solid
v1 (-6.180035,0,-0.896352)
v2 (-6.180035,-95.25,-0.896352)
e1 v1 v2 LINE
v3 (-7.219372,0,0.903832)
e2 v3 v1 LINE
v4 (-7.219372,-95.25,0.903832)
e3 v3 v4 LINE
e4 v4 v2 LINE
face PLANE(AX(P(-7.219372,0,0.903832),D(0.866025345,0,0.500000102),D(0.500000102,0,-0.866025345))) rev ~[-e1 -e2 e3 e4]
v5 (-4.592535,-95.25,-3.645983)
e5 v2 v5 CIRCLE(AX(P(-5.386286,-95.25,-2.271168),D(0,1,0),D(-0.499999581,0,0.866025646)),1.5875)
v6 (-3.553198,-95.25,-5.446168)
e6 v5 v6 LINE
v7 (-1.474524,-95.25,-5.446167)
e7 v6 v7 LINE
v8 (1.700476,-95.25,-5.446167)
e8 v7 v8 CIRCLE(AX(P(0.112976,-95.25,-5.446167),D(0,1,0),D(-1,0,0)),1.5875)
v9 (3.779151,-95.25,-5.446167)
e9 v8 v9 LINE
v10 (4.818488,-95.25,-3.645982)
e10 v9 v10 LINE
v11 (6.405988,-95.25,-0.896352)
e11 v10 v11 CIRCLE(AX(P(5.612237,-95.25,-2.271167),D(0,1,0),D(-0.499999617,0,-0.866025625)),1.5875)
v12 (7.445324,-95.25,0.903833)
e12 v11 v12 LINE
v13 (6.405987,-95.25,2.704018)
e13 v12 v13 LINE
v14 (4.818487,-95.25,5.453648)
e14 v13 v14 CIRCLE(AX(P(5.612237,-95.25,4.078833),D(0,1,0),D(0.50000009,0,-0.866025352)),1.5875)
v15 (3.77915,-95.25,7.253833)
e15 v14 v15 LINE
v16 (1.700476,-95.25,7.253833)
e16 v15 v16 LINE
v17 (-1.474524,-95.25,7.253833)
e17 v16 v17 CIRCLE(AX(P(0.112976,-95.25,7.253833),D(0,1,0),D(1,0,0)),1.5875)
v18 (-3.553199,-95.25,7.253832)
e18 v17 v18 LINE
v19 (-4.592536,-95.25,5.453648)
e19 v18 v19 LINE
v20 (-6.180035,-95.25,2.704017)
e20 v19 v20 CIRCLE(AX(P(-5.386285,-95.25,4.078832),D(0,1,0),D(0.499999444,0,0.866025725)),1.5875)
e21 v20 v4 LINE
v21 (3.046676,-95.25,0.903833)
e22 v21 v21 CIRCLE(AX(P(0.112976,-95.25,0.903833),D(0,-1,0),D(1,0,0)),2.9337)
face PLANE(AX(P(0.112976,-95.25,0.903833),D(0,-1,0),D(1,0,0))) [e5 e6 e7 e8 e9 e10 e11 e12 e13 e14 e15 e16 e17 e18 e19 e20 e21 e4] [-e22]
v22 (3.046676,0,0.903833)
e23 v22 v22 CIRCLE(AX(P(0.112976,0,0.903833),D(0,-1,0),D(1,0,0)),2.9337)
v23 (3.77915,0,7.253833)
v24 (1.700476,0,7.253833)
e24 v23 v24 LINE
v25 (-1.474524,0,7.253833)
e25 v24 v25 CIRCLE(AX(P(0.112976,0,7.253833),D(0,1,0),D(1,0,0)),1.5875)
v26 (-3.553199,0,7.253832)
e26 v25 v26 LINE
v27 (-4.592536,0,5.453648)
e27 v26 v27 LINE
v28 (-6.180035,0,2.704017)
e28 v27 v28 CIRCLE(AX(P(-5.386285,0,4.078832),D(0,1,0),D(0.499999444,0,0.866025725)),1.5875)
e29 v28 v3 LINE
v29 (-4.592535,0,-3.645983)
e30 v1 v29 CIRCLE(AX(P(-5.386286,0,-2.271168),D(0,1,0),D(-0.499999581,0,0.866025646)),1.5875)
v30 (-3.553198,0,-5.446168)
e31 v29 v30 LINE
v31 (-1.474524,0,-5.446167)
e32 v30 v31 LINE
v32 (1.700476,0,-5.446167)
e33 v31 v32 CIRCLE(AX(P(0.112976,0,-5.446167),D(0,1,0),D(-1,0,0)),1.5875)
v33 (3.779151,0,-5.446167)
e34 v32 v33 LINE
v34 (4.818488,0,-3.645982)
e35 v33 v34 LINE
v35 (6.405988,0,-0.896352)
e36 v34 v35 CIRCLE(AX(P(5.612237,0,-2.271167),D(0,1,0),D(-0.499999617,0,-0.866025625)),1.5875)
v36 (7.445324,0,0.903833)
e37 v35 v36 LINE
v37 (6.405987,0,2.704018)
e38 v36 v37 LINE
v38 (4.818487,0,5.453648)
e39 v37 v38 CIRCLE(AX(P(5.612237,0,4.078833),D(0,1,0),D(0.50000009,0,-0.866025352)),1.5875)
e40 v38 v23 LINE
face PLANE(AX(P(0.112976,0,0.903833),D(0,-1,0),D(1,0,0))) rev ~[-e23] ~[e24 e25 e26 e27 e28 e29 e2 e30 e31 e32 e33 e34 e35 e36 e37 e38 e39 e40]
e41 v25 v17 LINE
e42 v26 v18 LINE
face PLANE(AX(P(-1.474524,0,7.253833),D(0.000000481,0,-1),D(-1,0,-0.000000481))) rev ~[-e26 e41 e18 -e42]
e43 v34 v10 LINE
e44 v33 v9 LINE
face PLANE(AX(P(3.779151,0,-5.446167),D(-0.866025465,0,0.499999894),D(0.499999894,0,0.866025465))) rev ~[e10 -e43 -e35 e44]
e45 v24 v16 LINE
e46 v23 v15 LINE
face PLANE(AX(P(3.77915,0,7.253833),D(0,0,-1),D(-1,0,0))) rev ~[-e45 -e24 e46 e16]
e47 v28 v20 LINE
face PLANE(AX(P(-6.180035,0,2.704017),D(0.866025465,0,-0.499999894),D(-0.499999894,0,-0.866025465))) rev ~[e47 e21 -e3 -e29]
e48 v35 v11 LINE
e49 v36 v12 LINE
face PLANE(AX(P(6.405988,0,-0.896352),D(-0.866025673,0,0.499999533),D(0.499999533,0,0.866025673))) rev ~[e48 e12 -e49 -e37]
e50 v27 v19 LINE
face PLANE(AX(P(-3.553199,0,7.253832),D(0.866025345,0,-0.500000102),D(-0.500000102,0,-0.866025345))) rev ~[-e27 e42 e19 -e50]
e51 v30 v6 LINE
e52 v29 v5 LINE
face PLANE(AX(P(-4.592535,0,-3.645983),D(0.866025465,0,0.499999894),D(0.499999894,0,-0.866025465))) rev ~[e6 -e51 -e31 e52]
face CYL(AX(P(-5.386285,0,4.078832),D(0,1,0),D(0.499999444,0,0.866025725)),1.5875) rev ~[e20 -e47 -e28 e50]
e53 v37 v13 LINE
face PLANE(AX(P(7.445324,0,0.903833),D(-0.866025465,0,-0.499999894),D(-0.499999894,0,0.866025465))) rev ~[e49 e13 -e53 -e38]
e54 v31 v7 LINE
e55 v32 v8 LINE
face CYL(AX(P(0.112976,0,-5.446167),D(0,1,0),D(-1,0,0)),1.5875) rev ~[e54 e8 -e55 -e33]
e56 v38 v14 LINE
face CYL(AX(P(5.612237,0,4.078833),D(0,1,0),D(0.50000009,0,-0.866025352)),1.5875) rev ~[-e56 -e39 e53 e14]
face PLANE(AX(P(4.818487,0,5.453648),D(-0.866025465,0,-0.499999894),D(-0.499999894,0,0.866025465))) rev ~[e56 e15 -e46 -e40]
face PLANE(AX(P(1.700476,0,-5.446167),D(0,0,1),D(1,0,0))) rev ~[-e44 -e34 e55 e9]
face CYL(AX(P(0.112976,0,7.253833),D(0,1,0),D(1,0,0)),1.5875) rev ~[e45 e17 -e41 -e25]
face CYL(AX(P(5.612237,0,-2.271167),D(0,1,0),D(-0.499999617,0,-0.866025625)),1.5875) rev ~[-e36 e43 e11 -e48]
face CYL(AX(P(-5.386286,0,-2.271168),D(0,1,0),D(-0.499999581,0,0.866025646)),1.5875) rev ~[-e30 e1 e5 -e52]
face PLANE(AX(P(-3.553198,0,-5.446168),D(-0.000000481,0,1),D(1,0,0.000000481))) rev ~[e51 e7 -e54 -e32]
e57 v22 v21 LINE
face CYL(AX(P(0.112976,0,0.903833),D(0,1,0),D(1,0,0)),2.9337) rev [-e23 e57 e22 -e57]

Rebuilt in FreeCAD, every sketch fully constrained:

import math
import FreeCAD as App
import Part
import Sketcher
from FreeCAD import Vector
Q = App.Units.Quantity

doc = App.newDocument("Part")
params = doc.addObject("Spreadsheet::Sheet", "Params")
for row, (alias, value) in enumerate([
    ("sketch1_diameter", "0.231 in"),
    ("sketch1_radius", "0.0625 in"),
    ("sketch1_width", "0.03125 in"),
    ("pad1_length", "3.75 in"),
], start=1):
    params.set(f"A{row}", alias)
    params.set(f"B{row}", "=" + value)
    params.setAlias(f"B{row}", alias)

body = doc.addObject("PartDesign::Body", "Body")

sketch1 = body.newObject("Sketcher::SketchObject", "Sketch")
sketch1.AttachmentSupport = (doc.getObject("XZ_Plane"), [""])
sketch1.MapMode = "FlatFace"
sketch1.addGeometry([
    Part.ArcOfCircle(Part.Circle(Vector(5.612237, -2.271167, 0), Vector(0, 0, 1), 1.5875), math.radians(59.999963), math.radians(240.000025)),
    Part.LineSegment(Vector(6.405988, -0.896352, 0), Vector(7.445324, 0.903833, 0)),
    Part.LineSegment(Vector(7.445324, 0.903833, 0), Vector(6.405987, 2.704018, 0)),
    Part.ArcOfCircle(Part.Circle(Vector(5.612237, 4.078833, 0), Vector(0, 0, 1), 1.5875), math.radians(120.000006), math.radians(300.000006)),
    Part.LineSegment(Vector(4.818487, 5.453648, 0), Vector(3.77915, 7.253833, 0)),
    Part.LineSegment(Vector(3.77915, 7.253833, 0), Vector(1.700476, 7.253833, 0)),
    Part.ArcOfCircle(Part.Circle(Vector(0.112976, 7.253833, 0), Vector(0, 0, 1), 1.5875), math.radians(180), math.radians(360)),
    Part.LineSegment(Vector(-1.474524, 7.253833, 0), Vector(-3.553199, 7.253832, 0)),
    Part.LineSegment(Vector(-3.553199, 7.253832, 0), Vector(-4.592536, 5.453648, 0)),
    Part.ArcOfCircle(Part.Circle(Vector(-5.386285, 4.078832, 0), Vector(0, 0, 1), 1.5875), math.radians(-119.999999), math.radians(60.000037)),
    Part.LineSegment(Vector(-6.180035, 2.704017, 0), Vector(-7.219372, 0.903832, 0)),
    Part.LineSegment(Vector(-7.219372, 0.903832, 0), Vector(-6.180035, -0.896352, 0)),
    Part.ArcOfCircle(Part.Circle(Vector(-5.386286, -2.271168, 0), Vector(0, 0, 1), 1.5875), math.radians(-59.999978), math.radians(119.999972)),
    Part.LineSegment(Vector(-4.592535, -3.645983, 0), Vector(-3.553198, -5.446168, 0)),
    Part.LineSegment(Vector(-3.553198, -5.446168, 0), Vector(-1.474524, -5.446167, 0)),
    Part.ArcOfCircle(Part.Circle(Vector(0.112976, -5.446167, 0), Vector(0, 0, 1), 1.5875), math.radians(0), math.radians(180)),
    Part.LineSegment(Vector(1.700476, -5.446167, 0), Vector(3.779151, -5.446167, 0)),
    Part.LineSegment(Vector(3.779151, -5.446167, 0), Vector(4.818488, -3.645982, 0)),
    Part.Circle(Vector(0.112976, 0.903833, 0), Vector(0, 0, 1), 2.9337),
], False)
sketch1.addConstraint([
    Sketcher.Constraint("Coincident", 0, 1, 1, 1),
    Sketcher.Constraint("Coincident", 1, 2, 2, 1),
    Sketcher.Constraint("Coincident", 2, 2, 3, 2),
    Sketcher.Constraint("Coincident", 3, 1, 4, 1),
    Sketcher.Constraint("Coincident", 4, 2, 5, 1),
    Sketcher.Constraint("Coincident", 5, 2, 6, 2),
    Sketcher.Constraint("Coincident", 6, 1, 7, 1),
    Sketcher.Constraint("Coincident", 7, 2, 8, 1),
    Sketcher.Constraint("Coincident", 8, 2, 9, 2),
    Sketcher.Constraint("Coincident", 9, 1, 10, 1),
    Sketcher.Constraint("Coincident", 10, 2, 11, 1),
    Sketcher.Constraint("Coincident", 11, 2, 12, 2),
    Sketcher.Constraint("Coincident", 12, 1, 13, 1),
    Sketcher.Constraint("Coincident", 13, 2, 14, 1),
    Sketcher.Constraint("Coincident", 14, 2, 15, 2),
    Sketcher.Constraint("Coincident", 15, 1, 16, 1),
    Sketcher.Constraint("Coincident", 16, 2, 17, 1),
    Sketcher.Constraint("Coincident", 17, 2, 0, 2),
    Sketcher.Constraint("Horizontal", 5),
    Sketcher.Constraint("Horizontal", 7),
    Sketcher.Constraint("Horizontal", 14),
    Sketcher.Constraint("Horizontal", 16),
    Sketcher.Constraint("Equal", 0, 3),
    Sketcher.Constraint("Equal", 3, 6),
    Sketcher.Constraint("Equal", 6, 9),
    Sketcher.Constraint("Equal", 9, 12),
    Sketcher.Constraint("Equal", 12, 15),
    Sketcher.Constraint("Parallel", 2, 4),
    Sketcher.Constraint("Parallel", 1, 8),
    Sketcher.Constraint("Parallel", 8, 10),
    Sketcher.Constraint("Parallel", 4, 11),
    Sketcher.Constraint("Parallel", 11, 13),
    Sketcher.Constraint("Parallel", 10, 17),
    Sketcher.Constraint("Horizontal", 3, 3, 9, 3),
    Sketcher.Constraint("Horizontal", 0, 3, 12, 3),
    Sketcher.Constraint("Horizontal", 18, 3, 1, 2),
    Sketcher.Constraint("Horizontal", 6, 3, 4, 2),
    Sketcher.Constraint("Horizontal", 5, 2, 6, 1),
    Sketcher.Constraint("Horizontal", 3, 1, 8, 2),
    Sketcher.Constraint("Horizontal", 2, 2, 9, 1),
    Sketcher.Constraint("Horizontal", 1, 2, 10, 2),
    Sketcher.Constraint("Horizontal", 0, 1, 11, 2),
    Sketcher.Constraint("Horizontal", 15, 3, 13, 2),
    Sketcher.Constraint("Horizontal", 14, 2, 15, 1),
    Sketcher.Constraint("Horizontal", 12, 1, 17, 2),
    Sketcher.Constraint("Vertical", 0, 3, 3, 3),
    Sketcher.Constraint("Vertical", 9, 3, 12, 3),
    Sketcher.Constraint("Vertical", 6, 3, 15, 3),
    Sketcher.Constraint("Vertical", 15, 3, 18, 3),
    Sketcher.Constraint("Vertical", 0, 1, 2, 2),
    Sketcher.Constraint("Vertical", 8, 2, 12, 1),
    Sketcher.Constraint("Vertical", 7, 2, 13, 2),
    Sketcher.Constraint("Equal", 5, 7),
    Sketcher.Constraint("Equal", 2, 4),
    Sketcher.Constraint("Diameter", 18, Q("0.231 in")),
    Sketcher.Constraint("Angle", 2, Q("119.999993 deg")),
    Sketcher.Constraint("Radius", 0, Q("0.0625 in")),
    Sketcher.Constraint("DistanceY", 15, 3, 6, 3, Q("0.5 in")),
    Sketcher.Constraint("DistanceY", 0, 3, 3, 3, Q("0.25 in")),
    Sketcher.Constraint("DistanceX", 0, 3, 0, 1, Q("0.03125 in")),
    Sketcher.Constraint("DistanceX", 7, 2, -1, 1, 3.553199),
    Sketcher.Constraint("DistanceX", 5, 2, 5, 1, 2.078674),
    Sketcher.Constraint("DistanceY", 0, 1, -1, 1, 0.896352),
])
sketch1.setExpression("Constraints[54]", "Params.sketch1_diameter")
sketch1.setExpression("Constraints[56]", "Params.sketch1_radius")
sketch1.setExpression("Constraints[59]", "Params.sketch1_width")
pad1 = body.newObject("PartDesign::Pad", "Pad")
pad1.Profile = sketch1
pad1.setExpression("Length", "Params.pad1_length")

doc.recompute()
